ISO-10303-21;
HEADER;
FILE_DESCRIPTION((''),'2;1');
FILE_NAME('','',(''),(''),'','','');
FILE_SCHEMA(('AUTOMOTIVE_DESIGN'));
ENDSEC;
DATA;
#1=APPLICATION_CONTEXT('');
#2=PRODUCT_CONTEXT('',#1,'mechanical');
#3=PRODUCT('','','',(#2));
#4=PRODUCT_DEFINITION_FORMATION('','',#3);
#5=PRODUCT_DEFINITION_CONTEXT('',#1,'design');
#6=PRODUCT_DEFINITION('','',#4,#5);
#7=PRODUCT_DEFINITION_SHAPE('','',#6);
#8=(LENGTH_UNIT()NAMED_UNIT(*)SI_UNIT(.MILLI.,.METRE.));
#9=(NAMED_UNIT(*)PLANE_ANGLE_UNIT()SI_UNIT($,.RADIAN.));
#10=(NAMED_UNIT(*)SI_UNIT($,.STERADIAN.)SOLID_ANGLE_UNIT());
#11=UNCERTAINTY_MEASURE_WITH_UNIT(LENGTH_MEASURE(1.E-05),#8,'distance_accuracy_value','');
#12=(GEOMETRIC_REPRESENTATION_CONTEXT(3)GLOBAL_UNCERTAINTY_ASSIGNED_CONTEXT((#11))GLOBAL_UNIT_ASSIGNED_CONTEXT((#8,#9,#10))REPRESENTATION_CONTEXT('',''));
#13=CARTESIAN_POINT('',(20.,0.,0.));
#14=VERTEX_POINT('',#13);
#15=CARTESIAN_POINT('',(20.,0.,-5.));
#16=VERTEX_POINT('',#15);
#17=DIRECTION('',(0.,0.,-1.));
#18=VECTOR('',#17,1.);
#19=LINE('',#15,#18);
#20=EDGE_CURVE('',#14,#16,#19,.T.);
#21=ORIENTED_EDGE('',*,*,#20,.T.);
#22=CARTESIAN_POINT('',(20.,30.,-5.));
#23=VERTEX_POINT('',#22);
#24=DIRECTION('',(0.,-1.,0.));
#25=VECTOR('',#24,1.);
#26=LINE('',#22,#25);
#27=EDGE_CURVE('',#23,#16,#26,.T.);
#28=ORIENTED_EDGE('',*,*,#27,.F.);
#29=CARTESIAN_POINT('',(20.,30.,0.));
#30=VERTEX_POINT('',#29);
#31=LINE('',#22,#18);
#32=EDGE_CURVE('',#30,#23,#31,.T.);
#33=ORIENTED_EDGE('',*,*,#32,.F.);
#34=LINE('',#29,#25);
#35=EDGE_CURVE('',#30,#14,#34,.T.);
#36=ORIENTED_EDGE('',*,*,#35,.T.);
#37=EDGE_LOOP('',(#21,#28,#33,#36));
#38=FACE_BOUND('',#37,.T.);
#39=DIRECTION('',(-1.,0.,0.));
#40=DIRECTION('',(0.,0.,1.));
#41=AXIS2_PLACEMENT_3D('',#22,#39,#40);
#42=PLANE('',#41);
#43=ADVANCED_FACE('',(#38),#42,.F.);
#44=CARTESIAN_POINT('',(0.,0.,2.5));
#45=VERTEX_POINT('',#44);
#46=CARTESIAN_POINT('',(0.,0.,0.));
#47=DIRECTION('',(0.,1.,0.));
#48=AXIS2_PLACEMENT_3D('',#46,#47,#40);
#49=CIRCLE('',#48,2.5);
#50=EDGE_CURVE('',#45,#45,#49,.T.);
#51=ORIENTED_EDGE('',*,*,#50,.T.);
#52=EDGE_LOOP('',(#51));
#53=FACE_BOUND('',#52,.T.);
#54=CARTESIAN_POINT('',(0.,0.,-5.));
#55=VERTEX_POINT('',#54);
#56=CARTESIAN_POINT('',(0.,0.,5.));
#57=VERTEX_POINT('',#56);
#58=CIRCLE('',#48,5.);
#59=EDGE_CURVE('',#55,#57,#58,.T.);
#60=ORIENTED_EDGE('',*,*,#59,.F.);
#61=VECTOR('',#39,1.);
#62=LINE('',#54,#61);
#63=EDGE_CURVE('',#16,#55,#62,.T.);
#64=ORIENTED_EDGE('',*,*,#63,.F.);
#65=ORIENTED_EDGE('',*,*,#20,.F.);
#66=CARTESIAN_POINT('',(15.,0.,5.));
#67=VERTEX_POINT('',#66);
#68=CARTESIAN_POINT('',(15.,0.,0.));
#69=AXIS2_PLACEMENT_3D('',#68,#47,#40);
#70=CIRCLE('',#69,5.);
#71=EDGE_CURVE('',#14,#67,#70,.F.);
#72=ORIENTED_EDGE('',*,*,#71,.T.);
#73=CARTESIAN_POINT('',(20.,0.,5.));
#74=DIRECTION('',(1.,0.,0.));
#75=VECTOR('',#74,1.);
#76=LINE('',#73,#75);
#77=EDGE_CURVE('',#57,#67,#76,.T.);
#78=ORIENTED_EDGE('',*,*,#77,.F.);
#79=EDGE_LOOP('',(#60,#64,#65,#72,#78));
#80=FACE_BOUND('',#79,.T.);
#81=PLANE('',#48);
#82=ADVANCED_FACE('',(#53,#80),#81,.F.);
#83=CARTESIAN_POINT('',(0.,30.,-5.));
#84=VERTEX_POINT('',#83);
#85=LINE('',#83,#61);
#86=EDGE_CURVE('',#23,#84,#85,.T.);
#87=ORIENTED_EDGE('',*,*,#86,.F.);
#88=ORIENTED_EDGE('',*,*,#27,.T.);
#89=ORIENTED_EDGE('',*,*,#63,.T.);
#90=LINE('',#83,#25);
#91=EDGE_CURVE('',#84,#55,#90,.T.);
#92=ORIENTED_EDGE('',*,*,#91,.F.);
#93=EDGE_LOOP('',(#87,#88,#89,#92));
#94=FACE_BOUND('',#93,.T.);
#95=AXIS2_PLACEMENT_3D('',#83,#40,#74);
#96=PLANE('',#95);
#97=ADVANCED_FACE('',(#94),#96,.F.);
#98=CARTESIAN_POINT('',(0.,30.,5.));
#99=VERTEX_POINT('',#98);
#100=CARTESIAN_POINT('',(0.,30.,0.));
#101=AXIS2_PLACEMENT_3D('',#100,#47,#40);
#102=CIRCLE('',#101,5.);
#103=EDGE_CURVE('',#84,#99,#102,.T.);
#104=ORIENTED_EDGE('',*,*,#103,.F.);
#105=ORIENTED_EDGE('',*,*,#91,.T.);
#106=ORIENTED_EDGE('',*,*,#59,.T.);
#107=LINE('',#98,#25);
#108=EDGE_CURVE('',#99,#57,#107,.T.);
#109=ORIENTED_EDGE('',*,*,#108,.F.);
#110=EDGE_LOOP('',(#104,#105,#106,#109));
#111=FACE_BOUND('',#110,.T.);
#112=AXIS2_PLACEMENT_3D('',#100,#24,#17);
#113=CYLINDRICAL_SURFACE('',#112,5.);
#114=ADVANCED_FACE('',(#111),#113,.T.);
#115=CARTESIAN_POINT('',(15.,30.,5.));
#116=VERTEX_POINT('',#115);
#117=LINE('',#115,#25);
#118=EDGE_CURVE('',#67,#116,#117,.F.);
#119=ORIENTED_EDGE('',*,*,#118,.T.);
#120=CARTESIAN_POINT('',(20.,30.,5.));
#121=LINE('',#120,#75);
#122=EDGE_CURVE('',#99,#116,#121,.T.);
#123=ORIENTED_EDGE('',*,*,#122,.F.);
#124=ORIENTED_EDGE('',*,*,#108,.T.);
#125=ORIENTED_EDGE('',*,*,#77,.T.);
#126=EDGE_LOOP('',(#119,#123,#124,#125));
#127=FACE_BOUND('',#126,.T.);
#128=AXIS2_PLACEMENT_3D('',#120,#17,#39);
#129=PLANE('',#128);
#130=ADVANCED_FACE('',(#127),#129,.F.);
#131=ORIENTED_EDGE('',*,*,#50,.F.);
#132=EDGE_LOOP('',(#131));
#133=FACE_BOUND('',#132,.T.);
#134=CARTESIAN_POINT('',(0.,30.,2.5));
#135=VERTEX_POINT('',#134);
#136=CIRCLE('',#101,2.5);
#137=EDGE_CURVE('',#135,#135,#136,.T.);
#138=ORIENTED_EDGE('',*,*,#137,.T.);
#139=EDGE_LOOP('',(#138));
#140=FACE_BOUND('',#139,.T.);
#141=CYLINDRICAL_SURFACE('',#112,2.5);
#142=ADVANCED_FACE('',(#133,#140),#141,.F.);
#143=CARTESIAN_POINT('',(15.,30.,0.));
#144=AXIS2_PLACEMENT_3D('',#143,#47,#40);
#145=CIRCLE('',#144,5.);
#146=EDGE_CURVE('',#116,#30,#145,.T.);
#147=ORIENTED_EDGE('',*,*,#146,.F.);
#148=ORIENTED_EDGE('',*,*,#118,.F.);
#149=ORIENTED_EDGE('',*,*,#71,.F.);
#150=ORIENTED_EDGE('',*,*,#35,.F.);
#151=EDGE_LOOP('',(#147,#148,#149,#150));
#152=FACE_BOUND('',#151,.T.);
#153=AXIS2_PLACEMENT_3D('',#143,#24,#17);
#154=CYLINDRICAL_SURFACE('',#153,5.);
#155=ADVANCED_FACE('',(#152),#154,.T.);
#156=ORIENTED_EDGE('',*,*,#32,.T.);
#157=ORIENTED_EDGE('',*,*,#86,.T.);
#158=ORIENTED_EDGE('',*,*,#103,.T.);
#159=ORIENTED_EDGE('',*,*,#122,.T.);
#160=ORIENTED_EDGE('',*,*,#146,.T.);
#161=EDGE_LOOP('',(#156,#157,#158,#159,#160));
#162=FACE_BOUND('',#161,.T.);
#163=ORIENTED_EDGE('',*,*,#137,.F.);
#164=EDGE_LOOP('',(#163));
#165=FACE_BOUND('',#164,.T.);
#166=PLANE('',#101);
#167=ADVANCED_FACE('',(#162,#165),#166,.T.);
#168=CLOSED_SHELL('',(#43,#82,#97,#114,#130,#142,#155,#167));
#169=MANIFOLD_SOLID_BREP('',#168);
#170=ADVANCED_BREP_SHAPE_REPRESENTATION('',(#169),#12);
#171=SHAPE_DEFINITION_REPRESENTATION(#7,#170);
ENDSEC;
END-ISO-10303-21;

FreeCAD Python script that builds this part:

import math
import FreeCAD as App
import Part
import Sketcher

V = App.Vector
Q = App.Units.Quantity


def edges_at(feature, points):
    """Names of the edges that pass closest to the given points."""
    edges = feature.Shape.Edges
    near = lambda p: min(range(len(edges)), key=lambda i: edges[i].distToShape(Part.Vertex(*p))[0])
    return sorted({f"Edge{near(p) + 1}" for p in points})

doc = App.newDocument("Part")
body = doc.addObject("PartDesign::Body", "Body")

sketch1 = body.newObject("Sketcher::SketchObject", "Sketch")
sketch1.AttachmentSupport = (doc.getObject("XZ_Plane"), [""])
sketch1.MapMode = "FlatFace"
sketch1.addGeometry(Part.LineSegment(V(20, -5, 0), V(0, -5, 0)), False)
sketch1.addGeometry(Part.ArcOfCircle(Part.Circle(V(0, 0, 0), V(0, 0, 1), 5), math.radians(90), math.radians(270)), False)
sketch1.addGeometry(Part.LineSegment(V(0, 5, 0), V(20, 5, 0)), False)
sketch1.addGeometry(Part.LineSegment(V(20, 5, 0), V(20, -5, 0)), False)
sketch1.addGeometry(Part.Circle(V(0, 0, 0), V(0, 0, 1), 2.5), False)
sketch1.addConstraint(Sketcher.Constraint("Tangent", 0, 2, 1, 2))
sketch1.addConstraint(Sketcher.Constraint("Tangent", 1, 1, 2, 1))
sketch1.addConstraint(Sketcher.Constraint("Coincident", 2, 2, 3, 1))
sketch1.addConstraint(Sketcher.Constraint("Coincident", 3, 2, 0, 1))
sketch1.addConstraint(Sketcher.Constraint("Horizontal", 0))
sketch1.addConstraint(Sketcher.Constraint("Horizontal", 2))
sketch1.addConstraint(Sketcher.Constraint("Vertical", 3))
sketch1.addConstraint(Sketcher.Constraint("Coincident", 1, 3, -1, 1))
sketch1.addConstraint(Sketcher.Constraint("Coincident", 4, 3, -1, 1))
sketch1.addConstraint(Sketcher.Constraint("Diameter", 4, Q("5 mm")))
sketch1.addConstraint(Sketcher.Constraint("Radius", 1, Q("5 mm")))
sketch1.addConstraint(Sketcher.Constraint("DistanceX", 0, 2, 0, 1, Q("20 mm")))
pad1 = body.newObject("PartDesign::Pad", "Pad")
pad1.Profile = sketch1
pad1.Length = 30
pad1.Reversed = True
doc.recompute()

fillet = body.newObject("PartDesign::Fillet", "Fillet")
fillet.Base = (pad1, edges_at(pad1, [(20, 15, 5)]))
fillet.Radius = 5

doc.recompute()
